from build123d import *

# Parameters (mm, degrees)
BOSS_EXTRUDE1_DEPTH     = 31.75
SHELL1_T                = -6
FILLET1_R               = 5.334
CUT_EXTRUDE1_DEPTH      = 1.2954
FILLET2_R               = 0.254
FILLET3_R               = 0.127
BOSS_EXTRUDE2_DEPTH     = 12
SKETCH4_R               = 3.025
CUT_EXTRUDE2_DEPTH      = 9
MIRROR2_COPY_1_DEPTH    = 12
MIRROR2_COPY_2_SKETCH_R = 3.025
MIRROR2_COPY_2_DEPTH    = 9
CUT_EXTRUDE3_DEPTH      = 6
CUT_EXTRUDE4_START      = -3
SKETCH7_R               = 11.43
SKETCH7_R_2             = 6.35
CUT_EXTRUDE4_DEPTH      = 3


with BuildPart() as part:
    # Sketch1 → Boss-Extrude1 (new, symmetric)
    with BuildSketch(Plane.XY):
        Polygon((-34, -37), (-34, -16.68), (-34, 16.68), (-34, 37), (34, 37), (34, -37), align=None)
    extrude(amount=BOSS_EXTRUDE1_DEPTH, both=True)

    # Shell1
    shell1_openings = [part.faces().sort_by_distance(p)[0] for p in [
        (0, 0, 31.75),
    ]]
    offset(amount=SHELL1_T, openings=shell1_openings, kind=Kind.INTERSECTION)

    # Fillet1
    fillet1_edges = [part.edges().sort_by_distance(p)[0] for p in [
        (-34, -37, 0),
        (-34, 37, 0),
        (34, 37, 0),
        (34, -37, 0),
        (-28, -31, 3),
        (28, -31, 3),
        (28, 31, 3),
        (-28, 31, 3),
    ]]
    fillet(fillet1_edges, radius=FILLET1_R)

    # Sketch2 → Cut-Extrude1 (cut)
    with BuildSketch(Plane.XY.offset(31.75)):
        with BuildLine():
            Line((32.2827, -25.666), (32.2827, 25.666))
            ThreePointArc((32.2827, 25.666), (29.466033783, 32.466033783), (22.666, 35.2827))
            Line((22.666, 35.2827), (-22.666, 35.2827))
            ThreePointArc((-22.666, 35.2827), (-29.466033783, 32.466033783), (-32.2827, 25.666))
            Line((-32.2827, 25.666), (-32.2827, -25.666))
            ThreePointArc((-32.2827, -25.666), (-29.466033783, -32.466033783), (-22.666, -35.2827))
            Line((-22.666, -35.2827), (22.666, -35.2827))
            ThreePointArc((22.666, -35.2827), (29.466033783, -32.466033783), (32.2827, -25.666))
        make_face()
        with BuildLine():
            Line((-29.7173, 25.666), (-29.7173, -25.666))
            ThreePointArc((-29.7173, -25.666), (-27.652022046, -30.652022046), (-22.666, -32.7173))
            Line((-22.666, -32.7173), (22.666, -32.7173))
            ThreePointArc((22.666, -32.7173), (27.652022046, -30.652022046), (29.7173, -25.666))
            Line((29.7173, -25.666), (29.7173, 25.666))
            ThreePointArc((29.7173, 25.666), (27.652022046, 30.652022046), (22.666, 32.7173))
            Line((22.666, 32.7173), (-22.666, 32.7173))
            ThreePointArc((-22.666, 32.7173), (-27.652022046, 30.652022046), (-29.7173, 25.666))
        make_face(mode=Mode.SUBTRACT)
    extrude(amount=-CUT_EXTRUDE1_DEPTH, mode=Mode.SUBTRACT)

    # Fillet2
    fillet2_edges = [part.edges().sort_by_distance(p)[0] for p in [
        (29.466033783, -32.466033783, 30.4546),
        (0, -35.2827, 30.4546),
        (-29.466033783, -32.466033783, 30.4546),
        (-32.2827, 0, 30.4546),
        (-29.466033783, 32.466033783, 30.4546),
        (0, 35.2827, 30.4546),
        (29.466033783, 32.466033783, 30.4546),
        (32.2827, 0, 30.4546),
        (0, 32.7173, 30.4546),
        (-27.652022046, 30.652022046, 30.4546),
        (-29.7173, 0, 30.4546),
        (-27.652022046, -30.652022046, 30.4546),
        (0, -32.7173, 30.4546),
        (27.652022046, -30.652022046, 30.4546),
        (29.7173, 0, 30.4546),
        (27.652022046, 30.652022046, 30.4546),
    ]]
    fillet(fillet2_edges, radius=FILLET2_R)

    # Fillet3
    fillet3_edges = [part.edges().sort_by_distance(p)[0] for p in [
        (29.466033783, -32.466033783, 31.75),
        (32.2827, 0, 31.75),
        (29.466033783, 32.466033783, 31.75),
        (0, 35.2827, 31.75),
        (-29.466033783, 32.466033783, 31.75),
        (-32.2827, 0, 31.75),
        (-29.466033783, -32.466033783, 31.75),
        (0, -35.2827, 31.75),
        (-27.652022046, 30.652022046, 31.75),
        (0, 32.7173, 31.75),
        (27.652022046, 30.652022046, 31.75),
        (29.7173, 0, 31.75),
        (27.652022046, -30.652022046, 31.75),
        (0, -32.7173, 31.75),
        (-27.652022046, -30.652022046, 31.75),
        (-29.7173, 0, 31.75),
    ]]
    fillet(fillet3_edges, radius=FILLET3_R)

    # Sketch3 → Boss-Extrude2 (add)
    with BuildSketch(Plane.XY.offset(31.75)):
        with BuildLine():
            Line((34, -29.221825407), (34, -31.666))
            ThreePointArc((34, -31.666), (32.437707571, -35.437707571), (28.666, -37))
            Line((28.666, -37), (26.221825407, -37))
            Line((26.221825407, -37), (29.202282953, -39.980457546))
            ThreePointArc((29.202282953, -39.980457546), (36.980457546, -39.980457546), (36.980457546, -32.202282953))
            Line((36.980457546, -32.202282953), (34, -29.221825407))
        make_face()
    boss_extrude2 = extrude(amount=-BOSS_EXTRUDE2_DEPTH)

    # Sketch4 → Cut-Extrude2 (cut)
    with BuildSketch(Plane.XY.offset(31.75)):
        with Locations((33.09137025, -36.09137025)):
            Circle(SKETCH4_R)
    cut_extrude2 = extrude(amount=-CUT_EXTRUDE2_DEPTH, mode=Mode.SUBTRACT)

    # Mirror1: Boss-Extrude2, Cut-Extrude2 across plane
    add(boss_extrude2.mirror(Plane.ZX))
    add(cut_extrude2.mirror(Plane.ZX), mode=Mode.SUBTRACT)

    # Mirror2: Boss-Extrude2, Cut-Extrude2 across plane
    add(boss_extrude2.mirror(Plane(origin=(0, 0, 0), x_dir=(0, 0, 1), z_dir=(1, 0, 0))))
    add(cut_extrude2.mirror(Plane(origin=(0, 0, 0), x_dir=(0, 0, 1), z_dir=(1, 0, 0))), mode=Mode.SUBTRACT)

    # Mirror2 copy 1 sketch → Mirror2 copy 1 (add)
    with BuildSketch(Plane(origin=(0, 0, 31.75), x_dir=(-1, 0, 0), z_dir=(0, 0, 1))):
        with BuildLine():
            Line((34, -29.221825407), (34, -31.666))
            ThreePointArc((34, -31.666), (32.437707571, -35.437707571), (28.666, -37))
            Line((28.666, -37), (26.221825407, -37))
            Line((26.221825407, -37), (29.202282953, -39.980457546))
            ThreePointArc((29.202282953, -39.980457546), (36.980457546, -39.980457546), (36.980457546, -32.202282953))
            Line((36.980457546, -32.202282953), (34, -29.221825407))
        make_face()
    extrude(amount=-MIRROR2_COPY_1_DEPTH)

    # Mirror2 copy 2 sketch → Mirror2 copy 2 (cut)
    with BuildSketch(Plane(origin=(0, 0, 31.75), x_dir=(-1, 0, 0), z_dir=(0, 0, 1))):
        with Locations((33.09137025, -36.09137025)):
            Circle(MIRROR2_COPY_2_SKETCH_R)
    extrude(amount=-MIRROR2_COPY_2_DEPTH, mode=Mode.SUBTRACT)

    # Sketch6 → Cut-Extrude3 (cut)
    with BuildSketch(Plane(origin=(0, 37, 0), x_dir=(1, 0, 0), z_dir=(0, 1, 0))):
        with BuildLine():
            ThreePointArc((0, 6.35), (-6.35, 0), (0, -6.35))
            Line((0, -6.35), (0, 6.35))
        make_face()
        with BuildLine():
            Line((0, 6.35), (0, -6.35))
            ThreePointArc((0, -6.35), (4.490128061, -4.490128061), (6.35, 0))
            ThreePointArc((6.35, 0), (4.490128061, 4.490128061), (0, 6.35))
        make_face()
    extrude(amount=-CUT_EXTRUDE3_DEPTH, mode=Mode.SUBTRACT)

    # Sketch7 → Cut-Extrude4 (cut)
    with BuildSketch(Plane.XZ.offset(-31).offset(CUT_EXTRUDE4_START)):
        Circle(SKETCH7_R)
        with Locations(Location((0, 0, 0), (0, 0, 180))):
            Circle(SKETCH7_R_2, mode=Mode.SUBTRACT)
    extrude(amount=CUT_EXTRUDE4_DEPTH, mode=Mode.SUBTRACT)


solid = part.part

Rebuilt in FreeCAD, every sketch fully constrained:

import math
import FreeCAD as App
import Part
import Sketcher
Q = App.Units.Quantity


def edges_at(feature, points):
    """Names of the edges that pass closest to the given points."""
    edges = feature.Shape.Edges
    near = lambda p: min(range(len(edges)), key=lambda i: edges[i].distToShape(Part.Vertex(*p))[0])
    return sorted({f"Edge{near(p) + 1}" for p in points})


def faces_at(feature, points):
    """Names of the faces that lie closest to the given points."""
    faces = feature.Shape.Faces
    near = lambda p: min(range(len(faces)), key=lambda i: faces[i].distToShape(Part.Vertex(*p))[0])
    return sorted({f"Face{near(p) + 1}" for p in points})

doc = App.newDocument("Part")
params = doc.addObject("Spreadsheet::Sheet", "Params")
for row, (alias, value) in enumerate([
    ("pad1_length", "2.5 in"),
    ("thickness_wall", "6 mm"),
    ("fillet_radius", "0.21 in"),
    ("pocket1_length", "0.051 in"),
    ("fillet2_radius", "0.01 in"),
    ("fillet3_radius", "0.005 in"),
    ("sketch3_radius", "0.21 in"),
    ("pad2_length", "12 mm"),
    ("pocket2_length", "9 mm"),
    ("sketch5_radius", "0.21 in"),
    ("pad3_length", "12 mm"),
    ("pocket3_length", "9 mm"),
    ("sketch7_radius", "0.25 in"),
    ("pocket4_length", "6 mm"),
    ("sketch8_diameter", "0.9 in"),
    ("sketch8_diameter2", "0.5 in"),
    ("pocket5_length", "3 mm"),
], start=1):
    params.set(f"A{row}", alias)
    params.set(f"B{row}", "=" + value)
    params.setAlias(f"B{row}", alias)

body = doc.addObject("PartDesign::Body", "Body")

# Sketch on XY plane
sketch1 = body.newObject("Sketcher::SketchObject", "Sketch")
sketch1.AttachmentSupport = (doc.getObject("XY_Plane"), [""])
sketch1.MapMode = "FlatFace"
sketch1.addGeometry([
    Part.LineSegment(App.Vector(-34, 37, 0), App.Vector(-34, -37, 0)),
    Part.LineSegment(App.Vector(-34, -37, 0), App.Vector(34, -37, 0)),
    Part.LineSegment(App.Vector(34, -37, 0), App.Vector(34, 37, 0)),
    Part.LineSegment(App.Vector(34, 37, 0), App.Vector(-34, 37, 0)),
], False)
sketch1.addConstraint([
    Sketcher.Constraint("Coincident", 0, 2, 1, 1),
    Sketcher.Constraint("Coincident", 1, 2, 2, 1),
    Sketcher.Constraint("Coincident", 2, 2, 3, 1),
    Sketcher.Constraint("Coincident", 3, 2, 0, 1),
    Sketcher.Constraint("Vertical", 0),
    Sketcher.Constraint("Horizontal", 1),
    Sketcher.Constraint("Vertical", 2),
    Sketcher.Constraint("Horizontal", 3),
    Sketcher.Constraint("Symmetric", 0, 2, 2, 2, -1, 1),
    Sketcher.Constraint("DistanceX", 1, 1, 1, 2, Q("68 mm")),
    Sketcher.Constraint("DistanceY", 0, 2, 0, 1, Q("74 mm")),
])
pad1 = body.newObject("PartDesign::Pad", "Pad")
pad1.Profile = sketch1
pad1.setExpression("Length", "Params.pad1_length")
pad1.Midplane = True
doc.recompute()

thickness = body.newObject("PartDesign::Thickness", "Thickness")
thickness.Base = (pad1, faces_at(pad1, [(0, 0, 31.75)]))
thickness.setExpression("Value", "Params.thickness_wall")
thickness.Reversed = True
thickness.Join = "Intersection"
doc.recompute()

fillet = body.newObject("PartDesign::Fillet", "Fillet")
fillet.Base = (thickness, edges_at(thickness, [
    (-34, -37, 0),
    (-34, 37, 0),
    (34, 37, 0),
    (34, -37, 0),
    (-28, -31, 3),
    (28, -31, 3),
    (28, 31, 3),
    (-28, 31, 3),
]))
fillet.setExpression("Radius", "Params.fillet_radius")

# Sketch on XY plane
sketch2 = body.newObject("Sketcher::SketchObject", "Sketch001")
sketch2.AttachmentSupport = (doc.getObject("XY_Plane"), [""])
sketch2.MapMode = "FlatFace"
sketch2.AttachmentOffset = App.Placement(App.Vector(0, 0, 1.25 * 25.4), App.Rotation())
sketch2.addGeometry([
    Part.LineSegment(App.Vector(32, -26, 0), App.Vector(32, 26, 0)),  # 0
    Part.ArcOfCircle(Part.Circle(App.Vector(23, 26, 0), App.Vector(0, 0, 1), 10), math.radians(0), math.radians(90)),  # 1
    Part.LineSegment(App.Vector(23, 35, 0), App.Vector(-23, 35, 0)),  # 2
    Part.ArcOfCircle(Part.Circle(App.Vector(-23, 26, 0), App.Vector(0, 0, 1), 10), math.radians(90), math.radians(180)),  # 3
    Part.LineSegment(App.Vector(-32, 26, 0), App.Vector(-32, -26, 0)),  # 4
    Part.ArcOfCircle(Part.Circle(App.Vector(-23, -26, 0), App.Vector(0, 0, 1), 10), math.radians(180), math.radians(270)),  # 5
    Part.LineSegment(App.Vector(-23, -35, 0), App.Vector(23, -35, 0)),  # 6
    Part.ArcOfCircle(Part.Circle(App.Vector(23, -26, 0), App.Vector(0, 0, 1), 10), math.radians(-90), math.radians(0)),  # 7
    Part.LineSegment(App.Vector(-30, -26, 0), App.Vector(-30, 26, 0)),  # 8
    Part.ArcOfCircle(Part.Circle(App.Vector(-23, 26, 0), App.Vector(0, 0, 1), 7), math.radians(90), math.radians(180)),  # 9
    Part.LineSegment(App.Vector(-23, 33, 0), App.Vector(23, 33, 0)),  # 10
    Part.ArcOfCircle(Part.Circle(App.Vector(23, 26, 0), App.Vector(0, 0, 1), 7), math.radians(0), math.radians(90)),  # 11
    Part.LineSegment(App.Vector(30, 26, 0), App.Vector(30, -26, 0)),  # 12
    Part.ArcOfCircle(Part.Circle(App.Vector(23, -26, 0), App.Vector(0, 0, 1), 7), math.radians(-90), math.radians(0)),  # 13
    Part.LineSegment(App.Vector(23, -33, 0), App.Vector(-23, -33, 0)),  # 14
    Part.ArcOfCircle(Part.Circle(App.Vector(-23, -26, 0), App.Vector(0, 0, 1), 7), math.radians(-180), math.radians(-90)),  # 15
], False)
sketch2.addConstraint([
    Sketcher.Constraint("Tangent", 0, 2, 1, 1),
    Sketcher.Constraint("Tangent", 1, 2, 2, 1),
    Sketcher.Constraint("Tangent", 2, 2, 3, 1),
    Sketcher.Constraint("Tangent", 3, 2, 4, 1),
    Sketcher.Constraint("Tangent", 4, 2, 5, 1),
    Sketcher.Constraint("Tangent", 5, 2, 6, 1),
    Sketcher.Constraint("Tangent", 6, 2, 7, 1),
    Sketcher.Constraint("Tangent", 7, 2, 0, 1),
    Sketcher.Constraint("Tangent", 8, 2, 9, 2),
    Sketcher.Constraint("Tangent", 9, 1, 10, 1),
    Sketcher.Constraint("Tangent", 10, 2, 11, 2),
    Sketcher.Constraint("Tangent", 11, 1, 12, 1),
    Sketcher.Constraint("Tangent", 12, 2, 13, 2),
    Sketcher.Constraint("Tangent", 13, 1, 14, 1),
    Sketcher.Constraint("Tangent", 14, 2, 15, 2),
    Sketcher.Constraint("Tangent", 15, 1, 8, 1),
    Sketcher.Constraint("Vertical", 0),
    Sketcher.Constraint("Horizontal", 2),
    Sketcher.Constraint("Vertical", 4),
    Sketcher.Constraint("Horizontal", 6),
    Sketcher.Constraint("Vertical", 8),
    Sketcher.Constraint("Horizontal", 10),
    Sketcher.Constraint("Vertical", 12),
    Sketcher.Constraint("Horizontal", 14),
    Sketcher.Constraint("Coincident", 9, 3, 3, 3),
    Sketcher.Constraint("Coincident", 11, 3, 1, 3),
    Sketcher.Constraint("Coincident", 13, 3, 7, 3),
    Sketcher.Constraint("Equal", 1, 3),
    Sketcher.Constraint("Equal", 3, 5),
    Sketcher.Constraint("Equal", 5, 7),
    Sketcher.Constraint("Equal", 13, 15),
    Sketcher.Constraint("Symmetric", 1, 3, 5, 3, -1, 1),
    Sketcher.Constraint("Radius", 1, Q("9.6167 mm")),
    Sketcher.Constraint("Radius", 9, Q("7.0513 mm")),
    Sketcher.Constraint("DistanceX", 2, 2, 2, 1, Q("45.332 mm")),
    Sketcher.Constraint("DistanceY", 0, 1, 0, 2, Q("51.332 mm")),
])
pocket1 = body.newObject("PartDesign::Pocket", "Pocket")
pocket1.Profile = sketch2
pocket1.setExpression("Length", "Params.pocket1_length")
doc.recompute()

fillet2 = body.newObject("PartDesign::Fillet", "Fillet001")
fillet2.Base = (pocket1, edges_at(pocket1, [
    (29.466, -32.466, 30.455),
    (0, -35.283, 30.455),
    (-29.466, -32.466, 30.455),
    (-32.283, 0, 30.455),
    (-29.466, 32.466, 30.455),
    (0, 35.283, 30.455),
    (29.466, 32.466, 30.455),
    (32.283, 0, 30.455),
    (0, 32.717, 30.455),
    (-27.652, 30.652, 30.455),
    (-29.717, 0, 30.455),
    (-27.652, -30.652, 30.455),
    (0, -32.717, 30.455),
    (27.652, -30.652, 30.455),
    (29.717, 0, 30.455),
    (27.652, 30.652, 30.455),
]))
fillet2.setExpression("Radius", "Params.fillet2_radius")
doc.recompute()

fillet3 = body.newObject("PartDesign::Fillet", "Fillet002")
fillet3.Base = (fillet2, edges_at(fillet2, [
    (29.466, -32.466, 31.75),
    (32.283, 0, 31.75),
    (29.466, 32.466, 31.75),
    (0, 35.283, 31.75),
    (-29.466, 32.466, 31.75),
    (-32.283, 0, 31.75),
    (-29.466, -32.466, 31.75),
    (0, -35.283, 31.75),
    (-27.652, 30.652, 31.75),
    (0, 32.717, 31.75),
    (27.652, 30.652, 31.75),
    (29.717, 0, 31.75),
    (27.652, -30.652, 31.75),
    (0, -32.717, 31.75),
    (-27.652, -30.652, 31.75),
    (-29.717, 0, 31.75),
]))
fillet3.setExpression("Radius", "Params.fillet3_radius")

# Sketch on XY plane
sketch3 = body.newObject("Sketcher::SketchObject", "Sketch002")
sketch3.AttachmentSupport = (doc.getObject("XY_Plane"), [""])
sketch3.MapMode = "FlatFace"
sketch3.AttachmentOffset = App.Placement(App.Vector(0, 0, 1.25 * 25.4), App.Rotation())
sketch3.addGeometry([
    Part.LineSegment(App.Vector(34, -29.2, 0), App.Vector(34, -31.7, 0)),  # 0
    Part.ArcOfCircle(Part.Circle(App.Vector(28.7, -31.7, 0), App.Vector(0, 0, 1), 5.3), math.radians(-90), math.radians(0)),  # 1
    Part.LineSegment(App.Vector(28.7, -37, 0), App.Vector(26.2, -37, 0)),  # 2
    Part.LineSegment(App.Vector(26.2, -37, 0), App.Vector(29.2, -40, 0)),  # 3
    Part.ArcOfCircle(Part.Circle(App.Vector(33.1, -36.1, 0), App.Vector(0, 0, 1), 5.5), math.radians(-135), math.radians(45)),  # 4
    Part.LineSegment(App.Vector(37, -32.2, 0), App.Vector(34, -29.2, 0)),  # 5
], False)
sketch3.addConstraint([
    Sketcher.Constraint("Tangent", 0, 2, 1, 2),
    Sketcher.Constraint("Tangent", 1, 1, 2, 1),
    Sketcher.Constraint("Coincident", 2, 2, 3, 1),
    Sketcher.Constraint("Tangent", 3, 2, 4, 1),
    Sketcher.Constraint("Tangent", 4, 2, 5, 1),
    Sketcher.Constraint("Coincident", 5, 2, 0, 1),
    Sketcher.Constraint("Vertical", 0),
    Sketcher.Constraint("Horizontal", 2),
    Sketcher.Constraint("Parallel", 3, 5),
    Sketcher.Constraint("Equal", 2, 0),
    Sketcher.Constraint("Equal", 3, 5),
    Sketcher.Constraint("Radius", 1, Q("0.21 in")),
    Sketcher.Constraint("Radius", 4, Q("5.5 mm")),
    Sketcher.Constraint("DistanceX", -1, 1, 1, 3, Q("28.666 mm")),
    Sketcher.Constraint("DistanceY", 1, 3, -1, 1, Q("31.666 mm")),
    Sketcher.Constraint("DistanceX", -1, 1, 4, 3, Q("33.09137 mm")),
])
sketch3.setExpression("Constraints[11]", "Params.sketch3_radius")
pad2 = body.newObject("PartDesign::Pad", "Pad001")
pad2.Profile = sketch3
pad2.setExpression("Length", "Params.pad2_length")
pad2.Reversed = True

# Sketch on XY plane
sketch4 = body.newObject("Sketcher::SketchObject", "Sketch003")
sketch4.AttachmentSupport = (doc.getObject("XY_Plane"), [""])
sketch4.MapMode = "FlatFace"
sketch4.AttachmentOffset = App.Placement(App.Vector(0, 0, 1.25 * 25.4), App.Rotation())
sketch4.addGeometry(Part.Circle(App.Vector(33.1, -36.1, 0), App.Vector(0, 0, 1), 3), False)
sketch4.addConstraint([
    Sketcher.Constraint("Diameter", 0, Q("6.05 mm")),
    Sketcher.Constraint("DistanceX", -1, 1, 0, 3, Q("33.09137 mm")),
    Sketcher.Constraint("DistanceY", 0, 3, -1, 1, Q("36.09137 mm")),
])
pocket2 = body.newObject("PartDesign::Pocket", "Pocket001")
pocket2.Profile = sketch4
pocket2.setExpression("Length", "Params.pocket2_length")
doc.recompute()

mirrored = body.newObject("PartDesign::Mirrored", "Mirrored")
mirrored.Originals = [pad2, pocket2]
mirrored.MirrorPlane = (doc.getObject("XZ_Plane"), [""])
body.Tip = mirrored
doc.recompute()

mirrored2 = body.newObject("PartDesign::Mirrored", "Mirrored001")
mirrored2.Originals = [pad2, pocket2]
mirrored2.MirrorPlane = (doc.getObject("YZ_Plane"), [""])
body.Tip = mirrored2

# Sketch on XY plane
sketch5 = body.newObject("Sketcher::SketchObject", "Sketch004")
sketch5.AttachmentSupport = (doc.getObject("XY_Plane"), [""])
sketch5.MapMode = "FlatFace"
sketch5.AttachmentOffset = App.Placement(App.Vector(0, 0, 1.25 * 25.4), App.Rotation())
sketch5.addGeometry([
    Part.LineSegment(App.Vector(-34, 29.2, 0), App.Vector(-34, 31.7, 0)),  # 0
    Part.ArcOfCircle(Part.Circle(App.Vector(-28.7, 31.7, 0), App.Vector(0, 0, 1), 5.3), math.radians(90), math.radians(180)),  # 1
    Part.LineSegment(App.Vector(-28.7, 37, 0), App.Vector(-26.2, 37, 0)),  # 2
    Part.LineSegment(App.Vector(-26.2, 37, 0), App.Vector(-29.2, 40, 0)),  # 3
    Part.ArcOfCircle(Part.Circle(App.Vector(-33.1, 36.1, 0), App.Vector(0, 0, 1), 5.5), math.radians(45), math.radians(225)),  # 4
    Part.LineSegment(App.Vector(-37, 32.2, 0), App.Vector(-34, 29.2, 0)),  # 5
], False)
sketch5.addConstraint([
    Sketcher.Constraint("Tangent", 0, 2, 1, 2),
    Sketcher.Constraint("Tangent", 1, 1, 2, 1),
    Sketcher.Constraint("Coincident", 2, 2, 3, 1),
    Sketcher.Constraint("Tangent", 3, 2, 4, 1),
    Sketcher.Constraint("Tangent", 4, 2, 5, 1),
    Sketcher.Constraint("Coincident", 5, 2, 0, 1),
    Sketcher.Constraint("Vertical", 0),
    Sketcher.Constraint("Horizontal", 2),
    Sketcher.Constraint("Parallel", 3, 5),
    Sketcher.Constraint("Equal", 2, 0),
    Sketcher.Constraint("Equal", 3, 5),
    Sketcher.Constraint("Radius", 1, Q("0.21 in")),
    Sketcher.Constraint("Radius", 4, Q("5.5 mm")),
    Sketcher.Constraint("DistanceX", 1, 3, -1, 1, Q("28.666 mm")),
    Sketcher.Constraint("DistanceY", -1, 1, 1, 3, Q("31.666 mm")),
    Sketcher.Constraint("DistanceX", 4, 3, -1, 1, Q("33.09137 mm")),
])
sketch5.setExpression("Constraints[11]", "Params.sketch5_radius")
pad3 = body.newObject("PartDesign::Pad", "Pad002")
pad3.Profile = sketch5
pad3.setExpression("Length", "Params.pad3_length")
pad3.Reversed = True

# Sketch on XY plane
sketch6 = body.newObject("Sketcher::SketchObject", "Sketch005")
sketch6.AttachmentSupport = (doc.getObject("XY_Plane"), [""])
sketch6.MapMode = "FlatFace"
sketch6.AttachmentOffset = App.Placement(App.Vector(0, 0, 1.25 * 25.4), App.Rotation())
sketch6.addGeometry(Part.Circle(App.Vector(-33.1, 36.1, 0), App.Vector(0, 0, 1), 3), False)
sketch6.addConstraint([
    Sketcher.Constraint("Diameter", 0, Q("6.05 mm")),
    Sketcher.Constraint("DistanceX", 0, 3, -1, 1, Q("33.09137 mm")),
    Sketcher.Constraint("DistanceY", -1, 1, 0, 3, Q("36.09137 mm")),
])
pocket3 = body.newObject("PartDesign::Pocket", "Pocket002")
pocket3.Profile = sketch6
pocket3.setExpression("Length", "Params.pocket3_length")

# Sketch on XZ plane
sketch7 = body.newObject("Sketcher::SketchObject", "Sketch006")
sketch7.AttachmentSupport = (doc.getObject("XZ_Plane"), [""])
sketch7.MapMode = "FlatFace"
sketch7.AttachmentOffset = App.Placement(App.Vector(0, 0, -37), App.Rotation())
sketch7.addGeometry([
    Part.ArcOfCircle(Part.Circle(App.Vector(0, 0, 0), App.Vector(0, 0, 1), 6), math.radians(90), math.radians(270)),
    Part.ArcOfCircle(Part.Circle(App.Vector(0, 0, 0), App.Vector(0, 0, 1), 6), math.radians(0), math.radians(90)),
    Part.ArcOfCircle(Part.Circle(App.Vector(0, 0, 0), App.Vector(0, 0, 1), 6), math.radians(-90), math.radians(0)),
], False)
sketch7.addConstraint([
    Sketcher.Constraint("Tangent", 0, 1, 1, 2),
    Sketcher.Constraint("Tangent", 1, 1, 2, 2),
    Sketcher.Constraint("Tangent", 2, 1, 0, 2),
    Sketcher.Constraint("Coincident", 0, 3, -1, 1),
    Sketcher.Constraint("PointOnObject", 0, 1, -2),
    Sketcher.Constraint("PointOnObject", 1, 1, -1),
    Sketcher.Constraint("PointOnObject", 2, 1, -2),
    Sketcher.Constraint("Radius", 0, Q("0.25 in")),
])
sketch7.setExpression("Constraints[7]", "Params.sketch7_radius")
pocket4 = body.newObject("PartDesign::Pocket", "Pocket003")
pocket4.Profile = sketch7
pocket4.setExpression("Length", "Params.pocket4_length")
pocket4.Reversed = True

# Sketch on XZ plane
sketch8 = body.newObject("Sketcher::SketchObject", "Sketch007")
sketch8.AttachmentSupport = (doc.getObject("XZ_Plane"), [""])
sketch8.MapMode = "FlatFace"
sketch8.AttachmentOffset = App.Placement(App.Vector(0, 0, -34), App.Rotation())
sketch8.addGeometry([
    Part.Circle(App.Vector(0, 0, 0), App.Vector(0, 0, 1), 11),
    Part.Circle(App.Vector(0, 0, 0), App.Vector(0, 0, 1), 6),
], False)
sketch8.addConstraint([
    Sketcher.Constraint("Coincident", 0, 3, -1, 1),
    Sketcher.Constraint("Coincident", 1, 3, -1, 1),
    Sketcher.Constraint("Diameter", 0, Q("0.9 in")),
    Sketcher.Constraint("Diameter", 1, Q("0.5 in")),
])
sketch8.setExpression("Constraints[2]", "Params.sketch8_diameter")
sketch8.setExpression("Constraints[3]", "Params.sketch8_diameter2")
pocket5 = body.newObject("PartDesign::Pocket", "Pocket004")
pocket5.Profile = sketch8
pocket5.setExpression("Length", "Params.pocket5_length")
pocket5.Reversed = True

doc.recompute()
